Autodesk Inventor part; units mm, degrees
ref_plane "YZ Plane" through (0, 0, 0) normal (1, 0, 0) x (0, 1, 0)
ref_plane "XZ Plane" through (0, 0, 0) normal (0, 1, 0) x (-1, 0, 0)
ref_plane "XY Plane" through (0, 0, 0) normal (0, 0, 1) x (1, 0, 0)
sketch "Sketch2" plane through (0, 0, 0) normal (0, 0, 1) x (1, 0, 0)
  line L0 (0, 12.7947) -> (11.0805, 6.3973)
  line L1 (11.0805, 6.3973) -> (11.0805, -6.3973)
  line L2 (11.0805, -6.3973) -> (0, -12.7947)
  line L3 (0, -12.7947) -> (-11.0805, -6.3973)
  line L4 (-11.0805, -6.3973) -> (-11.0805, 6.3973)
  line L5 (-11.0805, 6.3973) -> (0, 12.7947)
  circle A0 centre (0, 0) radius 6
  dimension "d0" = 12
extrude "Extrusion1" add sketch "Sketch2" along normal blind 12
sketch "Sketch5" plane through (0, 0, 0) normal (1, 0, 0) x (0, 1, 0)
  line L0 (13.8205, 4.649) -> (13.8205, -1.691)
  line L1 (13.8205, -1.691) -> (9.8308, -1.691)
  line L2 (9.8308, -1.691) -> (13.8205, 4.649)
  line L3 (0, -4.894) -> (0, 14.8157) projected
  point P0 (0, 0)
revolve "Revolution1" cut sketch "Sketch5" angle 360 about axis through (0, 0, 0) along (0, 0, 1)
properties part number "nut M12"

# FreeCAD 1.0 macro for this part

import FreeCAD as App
import Part
import Sketcher
from FreeCAD import Vector
Q = App.Units.Quantity

doc = App.newDocument("Part")
body = doc.addObject("PartDesign::Body", "Body")

sketch1 = body.newObject("Sketcher::SketchObject", "Sketch")
sketch1.AttachmentSupport = (doc.getObject("XY_Plane"), [""])
sketch1.MapMode = "FlatFace"
sketch1.addGeometry([
    Part.LineSegment(Vector(11, 6, 0), Vector(0, 13, 0)),
    Part.LineSegment(Vector(0, 13, 0), Vector(-11, 6, 0)),
    Part.LineSegment(Vector(-11, 6, 0), Vector(-11, -6, 0)),
    Part.LineSegment(Vector(-11, -6, 0), Vector(0, -13, 0)),
    Part.LineSegment(Vector(0, -13, 0), Vector(11, -6, 0)),
    Part.LineSegment(Vector(11, -6, 0), Vector(11, 6, 0)),
    Part.Circle(Vector(0, 0, 0), Vector(0, 0, 1), 6),
], False)
sketch1.addConstraint([
    Sketcher.Constraint("Coincident", 0, 2, 1, 1),
    Sketcher.Constraint("Coincident", 1, 2, 2, 1),
    Sketcher.Constraint("Coincident", 2, 2, 3, 1),
    Sketcher.Constraint("Coincident", 3, 2, 4, 1),
    Sketcher.Constraint("Coincident", 4, 2, 5, 1),
    Sketcher.Constraint("Coincident", 5, 2, 0, 1),
    Sketcher.Constraint("Vertical", 2),
    Sketcher.Constraint("Vertical", 5),
    Sketcher.Constraint("Coincident", 6, 3, -1, 1),
    Sketcher.Constraint("Symmetric", 0, 2, 3, 2, -1, 1),
    Sketcher.Constraint("Symmetric", 1, 2, 4, 2, -1, 1),
    Sketcher.Constraint("PointOnObject", 0, 2, -2),
    Sketcher.Constraint("Parallel", 0, 3),
    Sketcher.Constraint("Horizontal", 2, 2, 4, 2),
    Sketcher.Constraint("Diameter", 6, Q("12 mm")),
    Sketcher.Constraint("Angle", 0, Q("149.9997 deg")),
    Sketcher.Constraint("DistanceY", 2, 2, 2, 1, Q("12.7946 mm")),
    Sketcher.Constraint("DistanceY", 2, 2, 0, 2, Q("19.192 mm")),
])
pad1 = body.newObject("PartDesign::Pad", "Pad")
pad1.Profile = sketch1
pad1.Length = 12

sketch2 = body.newObject("Sketcher::SketchObject", "Sketch001")
sketch2.AttachmentSupport = (doc.getObject("YZ_Plane"), [""])
sketch2.MapMode = "FlatFace"
sketch2.addGeometry([
    Part.LineSegment(Vector(13.8, -1.7, 0), Vector(13.8, 4.6, 0)),
    Part.LineSegment(Vector(13.8, 4.6, 0), Vector(9.8, -1.7, 0)),
    Part.LineSegment(Vector(9.8, -1.7, 0), Vector(13.8, -1.7, 0)),
], False)
sketch2.addConstraint([
    Sketcher.Constraint("Coincident", 0, 2, 1, 1),
    Sketcher.Constraint("Coincident", 1, 2, 2, 1),
    Sketcher.Constraint("Coincident", 2, 2, 0, 1),
    Sketcher.Constraint("Vertical", 0),
    Sketcher.Constraint("Horizontal", 2),
    Sketcher.Constraint("DistanceY", 0, 1, 0, 2, Q("6.34 mm")),
    Sketcher.Constraint("Distance", 1, Q("7.491 mm")),
    Sketcher.Constraint("DistanceY", -1, 1, 0, 2, Q("4.649 mm")),
    Sketcher.Constraint("DistanceX", -1, 1, 0, 2, Q("13.8205 mm")),
])
groove = body.newObject("PartDesign::Groove", "Groove")
groove.Profile = sketch2
groove.ReferenceAxis = (sketch2, ["V_Axis"])
groove.Angle = 360

doc.recompute()
